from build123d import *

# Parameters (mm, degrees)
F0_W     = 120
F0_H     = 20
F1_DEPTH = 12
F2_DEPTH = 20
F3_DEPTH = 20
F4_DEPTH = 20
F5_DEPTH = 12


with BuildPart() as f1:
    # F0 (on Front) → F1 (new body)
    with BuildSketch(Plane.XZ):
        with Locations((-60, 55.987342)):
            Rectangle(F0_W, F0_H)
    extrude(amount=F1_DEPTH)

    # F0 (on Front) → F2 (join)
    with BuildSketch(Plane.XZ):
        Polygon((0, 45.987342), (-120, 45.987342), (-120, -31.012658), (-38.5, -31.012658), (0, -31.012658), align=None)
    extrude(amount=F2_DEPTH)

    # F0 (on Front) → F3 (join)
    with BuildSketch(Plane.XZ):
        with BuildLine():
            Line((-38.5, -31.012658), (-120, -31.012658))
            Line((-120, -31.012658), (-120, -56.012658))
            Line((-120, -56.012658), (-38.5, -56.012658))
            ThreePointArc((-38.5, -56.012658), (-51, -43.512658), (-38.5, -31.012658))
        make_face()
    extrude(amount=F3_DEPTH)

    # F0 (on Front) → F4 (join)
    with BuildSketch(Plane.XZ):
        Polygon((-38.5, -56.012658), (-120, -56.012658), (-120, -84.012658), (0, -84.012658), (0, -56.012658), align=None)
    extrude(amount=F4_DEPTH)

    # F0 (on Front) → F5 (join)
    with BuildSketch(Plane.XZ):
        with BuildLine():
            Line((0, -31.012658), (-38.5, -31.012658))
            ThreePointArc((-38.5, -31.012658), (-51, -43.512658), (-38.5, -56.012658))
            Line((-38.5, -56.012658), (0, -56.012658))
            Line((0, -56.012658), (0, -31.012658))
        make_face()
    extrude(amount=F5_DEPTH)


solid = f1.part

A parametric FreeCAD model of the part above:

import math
import FreeCAD as App
import Part
import Sketcher

V = App.Vector

doc = App.newDocument("Part")
body = doc.addObject("PartDesign::Body", "Body")

# Sketch on XZ plane
sketch1 = doc.addObject("Sketcher::SketchObject", "Sketch")
body.addObject(sketch1)
sketch1.AttachmentSupport = (doc.XZ_Plane, [""])
sketch1.MapMode = "FlatFace"
sketch1.addGeometry([
    Part.LineSegment(V(-120, 65.987342, 0), V(-120, 45.987342, 0)),
    Part.LineSegment(V(-120, 45.987342, 0), V(0, 45.987342, 0)),
    Part.LineSegment(V(0, 45.987342, 0), V(0, 65.987342, 0)),
    Part.LineSegment(V(0, 65.987342, 0), V(-120, 65.987342, 0)),
], False)
sketch1.addConstraint([
    Sketcher.Constraint("Coincident", 0, 2, 1, 1),
    Sketcher.Constraint("Coincident", 1, 2, 2, 1),
    Sketcher.Constraint("Coincident", 2, 2, 3, 1),
    Sketcher.Constraint("Coincident", 3, 2, 0, 1),
    Sketcher.Constraint("Vertical", 0),
    Sketcher.Constraint("Horizontal", 1),
    Sketcher.Constraint("Vertical", 2),
    Sketcher.Constraint("Horizontal", 3),
    Sketcher.Constraint("PointOnObject", 1, 2, -2),
    Sketcher.Constraint("DistanceX", 1, 1, 1, 2, 120.0),
    Sketcher.Constraint("DistanceY", 0, 2, 0, 1, 20.0),
    Sketcher.Constraint("DistanceY", -1, 1, 0, 2, 45.987342),
])
pad1 = doc.addObject("PartDesign::Pad", "Pad")
body.addObject(pad1)
pad1.Profile = sketch1
pad1.Length = 12

# Sketch on XZ plane
sketch2 = doc.addObject("Sketcher::SketchObject", "Sketch001")
body.addObject(sketch2)
sketch2.AttachmentSupport = (doc.XZ_Plane, [""])
sketch2.MapMode = "FlatFace"
sketch2.addGeometry([
    Part.LineSegment(V(0, 45.987342, 0), V(-120, 45.987342, 0)),
    Part.LineSegment(V(-120, 45.987342, 0), V(-120, -31.012658, 0)),
    Part.LineSegment(V(-120, -31.012658, 0), V(0, -31.012658, 0)),
    Part.LineSegment(V(0, -31.012658, 0), V(0, 45.987342, 0)),
], False)
sketch2.addConstraint([
    Sketcher.Constraint("Coincident", 0, 2, 1, 1),
    Sketcher.Constraint("Coincident", 1, 2, 2, 1),
    Sketcher.Constraint("Coincident", 2, 2, 3, 1),
    Sketcher.Constraint("Coincident", 3, 2, 0, 1),
    Sketcher.Constraint("Horizontal", 0),
    Sketcher.Constraint("Vertical", 1),
    Sketcher.Constraint("Horizontal", 2),
    Sketcher.Constraint("Vertical", 3),
    Sketcher.Constraint("PointOnObject", 2, 2, -2),
    Sketcher.Constraint("DistanceX", 0, 2, 0, 1, 120.0),
    Sketcher.Constraint("DistanceY", 1, 2, 1, 1, 77.0),
    Sketcher.Constraint("DistanceY", -1, 1, 0, 2, 45.987342),
])
pad2 = doc.addObject("PartDesign::Pad", "Pad001")
body.addObject(pad2)
pad2.Profile = sketch2
pad2.Length = 20

# Sketch on XZ plane
sketch3 = doc.addObject("Sketcher::SketchObject", "Sketch002")
body.addObject(sketch3)
sketch3.AttachmentSupport = (doc.XZ_Plane, [""])
sketch3.MapMode = "FlatFace"
sketch3.addGeometry([
    Part.LineSegment(V(-38.5, -31.012658, 0), V(-120, -31.012658, 0)),
    Part.LineSegment(V(-120, -31.012658, 0), V(-120, -56.012658, 0)),
    Part.LineSegment(V(-120, -56.012658, 0), V(-38.5, -56.012658, 0)),
    Part.ArcOfCircle(Part.Circle(V(-38.5, -43.512658, 0), V(0, 0, 1), 12.5), math.radians(90), math.radians(270)),
], False)
sketch3.addConstraint([
    Sketcher.Constraint("Coincident", 0, 2, 1, 1),
    Sketcher.Constraint("Coincident", 1, 2, 2, 1),
    Sketcher.Constraint("Tangent", 2, 2, 3, 2),
    Sketcher.Constraint("Tangent", 3, 1, 0, 1),
    Sketcher.Constraint("Horizontal", 0),
    Sketcher.Constraint("Vertical", 1),
    Sketcher.Constraint("Horizontal", 2),
    Sketcher.Constraint("Radius", 3, 12.5),
    Sketcher.Constraint("DistanceX", 0, 2, 0, 1, 81.5),
    Sketcher.Constraint("DistanceX", 0, 2, -1, 1, 120.0),
    Sketcher.Constraint("DistanceY", 3, 3, -1, 1, 43.512658),
])
pad3 = doc.addObject("PartDesign::Pad", "Pad002")
body.addObject(pad3)
pad3.Profile = sketch3
pad3.Length = 20

# Sketch on XZ plane
sketch4 = doc.addObject("Sketcher::SketchObject", "Sketch003")
body.addObject(sketch4)
sketch4.AttachmentSupport = (doc.XZ_Plane, [""])
sketch4.MapMode = "FlatFace"
sketch4.addGeometry([
    Part.LineSegment(V(-120, -56.012658, 0), V(-120, -84.012658, 0)),
    Part.LineSegment(V(-120, -84.012658, 0), V(0, -84.012658, 0)),
    Part.LineSegment(V(0, -84.012658, 0), V(0, -56.012658, 0)),
    Part.LineSegment(V(0, -56.012658, 0), V(-120, -56.012658, 0)),
], False)
sketch4.addConstraint([
    Sketcher.Constraint("Coincident", 0, 2, 1, 1),
    Sketcher.Constraint("Coincident", 1, 2, 2, 1),
    Sketcher.Constraint("Coincident", 2, 2, 3, 1),
    Sketcher.Constraint("Coincident", 3, 2, 0, 1),
    Sketcher.Constraint("Vertical", 0),
    Sketcher.Constraint("Horizontal", 1),
    Sketcher.Constraint("Vertical", 2),
    Sketcher.Constraint("Horizontal", 3),
    Sketcher.Constraint("PointOnObject", 1, 2, -2),
    Sketcher.Constraint("DistanceX", 1, 1, 1, 2, 120.0),
    Sketcher.Constraint("DistanceY", 0, 2, 0, 1, 28.0),
    Sketcher.Constraint("DistanceY", 0, 2, -1, 1, 84.012658),
])
pad4 = doc.addObject("PartDesign::Pad", "Pad003")
body.addObject(pad4)
pad4.Profile = sketch4
pad4.Length = 20

# Sketch on XZ plane
sketch5 = doc.addObject("Sketcher::SketchObject", "Sketch004")
body.addObject(sketch5)
sketch5.AttachmentSupport = (doc.XZ_Plane, [""])
sketch5.MapMode = "FlatFace"
sketch5.addGeometry([
    Part.LineSegment(V(0, -31.012658, 0), V(-38.5, -31.012658, 0)),
    Part.ArcOfCircle(Part.Circle(V(-38.5, -43.512658, 0), V(0, 0, 1), 12.5), math.radians(90), math.radians(270)),
    Part.LineSegment(V(-38.5, -56.012658, 0), V(0, -56.012658, 0)),
    Part.LineSegment(V(0, -56.012658, 0), V(0, -31.012658, 0)),
], False)
sketch5.addConstraint([
    Sketcher.Constraint("Tangent", 0, 2, 1, 1),
    Sketcher.Constraint("Tangent", 1, 2, 2, 1),
    Sketcher.Constraint("Coincident", 2, 2, 3, 1),
    Sketcher.Constraint("Coincident", 3, 2, 0, 1),
    Sketcher.Constraint("Horizontal", 0),
    Sketcher.Constraint("Horizontal", 2),
    Sketcher.Constraint("Vertical", 3),
    Sketcher.Constraint("PointOnObject", 2, 2, -2),
    Sketcher.Constraint("Radius", 1, 12.5),
    Sketcher.Constraint("DistanceX", 0, 2, 0, 1, 38.5),
    Sketcher.Constraint("DistanceY", 1, 3, -1, 1, 43.512658),
])
pad5 = doc.addObject("PartDesign::Pad", "Pad004")
body.addObject(pad5)
pad5.Profile = sketch5
pad5.Length = 12

doc.recompute()
